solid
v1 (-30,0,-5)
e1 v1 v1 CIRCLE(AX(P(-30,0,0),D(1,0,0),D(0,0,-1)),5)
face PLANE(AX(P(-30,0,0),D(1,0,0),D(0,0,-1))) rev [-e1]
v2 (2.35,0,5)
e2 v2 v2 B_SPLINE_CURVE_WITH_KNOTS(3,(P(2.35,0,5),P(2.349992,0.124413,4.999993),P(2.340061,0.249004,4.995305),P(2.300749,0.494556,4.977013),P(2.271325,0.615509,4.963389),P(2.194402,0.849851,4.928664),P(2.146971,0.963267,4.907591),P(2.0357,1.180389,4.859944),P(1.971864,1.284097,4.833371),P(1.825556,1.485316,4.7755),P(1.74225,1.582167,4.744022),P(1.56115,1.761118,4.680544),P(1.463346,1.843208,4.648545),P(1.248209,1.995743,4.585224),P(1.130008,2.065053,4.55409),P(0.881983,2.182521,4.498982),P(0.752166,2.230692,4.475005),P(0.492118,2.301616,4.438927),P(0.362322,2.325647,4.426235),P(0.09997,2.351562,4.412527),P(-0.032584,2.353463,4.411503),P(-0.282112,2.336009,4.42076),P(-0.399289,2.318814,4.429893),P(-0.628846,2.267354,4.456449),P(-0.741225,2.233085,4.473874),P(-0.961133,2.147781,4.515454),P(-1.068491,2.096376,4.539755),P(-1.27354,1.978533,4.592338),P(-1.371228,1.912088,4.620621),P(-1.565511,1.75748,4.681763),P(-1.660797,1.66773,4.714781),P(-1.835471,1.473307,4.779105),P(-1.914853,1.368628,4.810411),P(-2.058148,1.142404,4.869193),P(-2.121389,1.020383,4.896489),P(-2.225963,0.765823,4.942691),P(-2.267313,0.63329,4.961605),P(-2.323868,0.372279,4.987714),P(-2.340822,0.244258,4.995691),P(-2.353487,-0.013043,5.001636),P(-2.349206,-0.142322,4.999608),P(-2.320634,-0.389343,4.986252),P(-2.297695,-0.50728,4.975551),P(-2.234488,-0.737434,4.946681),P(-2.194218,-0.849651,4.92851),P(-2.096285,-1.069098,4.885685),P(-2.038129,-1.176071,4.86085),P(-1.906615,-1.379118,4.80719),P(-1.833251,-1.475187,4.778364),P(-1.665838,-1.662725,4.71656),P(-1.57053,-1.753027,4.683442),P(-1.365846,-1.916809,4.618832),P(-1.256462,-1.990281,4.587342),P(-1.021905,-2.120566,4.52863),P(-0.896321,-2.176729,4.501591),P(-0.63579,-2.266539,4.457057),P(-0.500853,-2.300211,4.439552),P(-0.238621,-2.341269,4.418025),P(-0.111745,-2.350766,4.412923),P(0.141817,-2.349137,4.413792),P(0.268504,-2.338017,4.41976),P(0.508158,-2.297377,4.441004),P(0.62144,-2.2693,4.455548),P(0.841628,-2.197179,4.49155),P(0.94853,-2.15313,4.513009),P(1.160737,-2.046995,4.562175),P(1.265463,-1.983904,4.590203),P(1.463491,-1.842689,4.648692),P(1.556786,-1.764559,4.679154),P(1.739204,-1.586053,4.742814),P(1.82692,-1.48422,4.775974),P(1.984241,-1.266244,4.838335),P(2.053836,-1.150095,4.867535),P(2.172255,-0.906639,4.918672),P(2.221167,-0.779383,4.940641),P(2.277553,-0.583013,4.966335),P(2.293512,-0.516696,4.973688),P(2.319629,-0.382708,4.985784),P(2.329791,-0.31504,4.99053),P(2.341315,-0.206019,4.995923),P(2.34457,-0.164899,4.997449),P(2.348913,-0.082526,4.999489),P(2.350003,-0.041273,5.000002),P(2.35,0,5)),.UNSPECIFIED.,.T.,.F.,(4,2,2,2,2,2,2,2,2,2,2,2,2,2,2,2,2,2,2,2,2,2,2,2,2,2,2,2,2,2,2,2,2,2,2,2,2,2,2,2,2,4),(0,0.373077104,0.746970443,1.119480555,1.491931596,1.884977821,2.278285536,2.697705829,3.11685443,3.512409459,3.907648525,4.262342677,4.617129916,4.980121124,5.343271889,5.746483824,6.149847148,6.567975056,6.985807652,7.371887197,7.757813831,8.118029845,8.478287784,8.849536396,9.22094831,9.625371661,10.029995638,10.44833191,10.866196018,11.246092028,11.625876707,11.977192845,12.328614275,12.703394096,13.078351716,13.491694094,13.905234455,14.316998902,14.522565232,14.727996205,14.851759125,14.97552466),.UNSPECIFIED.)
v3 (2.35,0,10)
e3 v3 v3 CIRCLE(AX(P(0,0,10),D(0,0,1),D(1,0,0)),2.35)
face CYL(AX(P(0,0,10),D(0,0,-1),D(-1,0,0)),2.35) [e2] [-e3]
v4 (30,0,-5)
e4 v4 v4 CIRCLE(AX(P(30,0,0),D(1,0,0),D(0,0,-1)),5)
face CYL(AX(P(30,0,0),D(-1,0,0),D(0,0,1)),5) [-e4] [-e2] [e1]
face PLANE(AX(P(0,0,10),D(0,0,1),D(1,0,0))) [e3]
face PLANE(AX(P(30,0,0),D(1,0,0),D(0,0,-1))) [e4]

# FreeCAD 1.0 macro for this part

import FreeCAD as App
import Part
import Sketcher

V = App.Vector
Q = App.Units.Quantity

doc = App.newDocument("Part")
body = doc.addObject("PartDesign::Body", "Body")

# Sketch on YZ plane
sketch1 = doc.addObject("Sketcher::SketchObject", "Sketch")
body.addObject(sketch1)
sketch1.AttachmentSupport = (doc.YZ_Plane, [""])
sketch1.MapMode = "FlatFace"
sketch1.addGeometry(Part.Circle(V(0, 0, 0), V(0, 0, 1), 5), False)
sketch1.addConstraint([
    Sketcher.Constraint("Coincident", 0, 3, -1, 1),
    Sketcher.Constraint("Diameter", 0, Q("10 mm")),
])
pad1 = doc.addObject("PartDesign::Pad", "Pad")
body.addObject(pad1)
pad1.Profile = sketch1
pad1.Length = 60
pad1.Midplane = True

# Sketch on XY plane
sketch2 = doc.addObject("Sketcher::SketchObject", "Sketch001")
body.addObject(sketch2)
sketch2.AttachmentSupport = (doc.XY_Plane, [""])
sketch2.MapMode = "FlatFace"
sketch2.addGeometry(Part.Circle(V(0, 0, 0), V(0, 0, 1), 2.35), False)
sketch2.addConstraint([
    Sketcher.Constraint("Coincident", 0, 3, -1, 1),
    Sketcher.Constraint("Diameter", 0, Q("4.7 mm")),
])
pad2 = doc.addObject("PartDesign::Pad", "Pad001")
body.addObject(pad2)
pad2.Profile = sketch2
pad2.Length = 10

doc.recompute()
